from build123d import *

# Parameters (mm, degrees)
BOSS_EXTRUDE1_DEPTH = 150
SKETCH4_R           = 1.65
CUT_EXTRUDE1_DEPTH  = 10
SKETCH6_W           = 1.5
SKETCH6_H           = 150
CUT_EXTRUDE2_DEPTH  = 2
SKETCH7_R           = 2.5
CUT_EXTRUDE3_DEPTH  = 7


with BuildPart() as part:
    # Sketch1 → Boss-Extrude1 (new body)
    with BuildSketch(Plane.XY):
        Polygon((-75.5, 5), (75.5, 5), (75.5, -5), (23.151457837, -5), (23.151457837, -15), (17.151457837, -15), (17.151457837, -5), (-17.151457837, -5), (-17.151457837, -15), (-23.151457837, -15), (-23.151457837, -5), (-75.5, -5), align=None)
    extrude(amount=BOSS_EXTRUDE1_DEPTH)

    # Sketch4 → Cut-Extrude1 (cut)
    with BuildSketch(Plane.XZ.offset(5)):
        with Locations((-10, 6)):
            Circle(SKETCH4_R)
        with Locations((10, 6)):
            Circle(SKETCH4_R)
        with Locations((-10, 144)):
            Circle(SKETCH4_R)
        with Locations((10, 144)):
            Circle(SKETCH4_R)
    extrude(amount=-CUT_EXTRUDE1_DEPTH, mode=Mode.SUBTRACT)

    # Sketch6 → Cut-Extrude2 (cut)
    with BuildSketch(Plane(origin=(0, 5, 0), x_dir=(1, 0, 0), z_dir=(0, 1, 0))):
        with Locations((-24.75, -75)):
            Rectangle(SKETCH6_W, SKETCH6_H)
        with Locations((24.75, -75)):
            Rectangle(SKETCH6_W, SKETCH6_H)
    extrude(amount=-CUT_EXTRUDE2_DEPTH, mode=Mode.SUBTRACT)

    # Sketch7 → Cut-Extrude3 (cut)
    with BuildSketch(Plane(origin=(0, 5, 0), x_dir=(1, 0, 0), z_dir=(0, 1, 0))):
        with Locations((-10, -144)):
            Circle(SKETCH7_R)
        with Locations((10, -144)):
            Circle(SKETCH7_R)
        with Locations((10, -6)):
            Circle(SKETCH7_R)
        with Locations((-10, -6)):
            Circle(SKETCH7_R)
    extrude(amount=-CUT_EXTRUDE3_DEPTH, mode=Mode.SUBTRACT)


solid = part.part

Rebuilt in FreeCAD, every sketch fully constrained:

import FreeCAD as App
import Part
import Sketcher
from FreeCAD import Vector


def add_polygon(sketch, points):
    """Adds a closed chain of lines whose ends are joined by coincident constraints."""
    first, n = sketch.GeometryCount, len(points)
    for a, b in zip(points, points[1:] + points[:1]):
        sketch.addGeometry(Part.LineSegment(App.Vector(*a, 0), App.Vector(*b, 0)), False)
    for i in range(n):
        sketch.addConstraint(Sketcher.Constraint("Coincident", first + i, 2, first + (i + 1) % n, 1))

doc = App.newDocument("Part")
body = doc.addObject("PartDesign::Body", "Body")

# Sketch on XY plane
sketch1 = body.newObject("Sketcher::SketchObject", "Sketch")
sketch1.AttachmentSupport = (doc.getObject("XY_Plane"), [""])
sketch1.MapMode = "FlatFace"
add_polygon(sketch1, [(76, 5), (-76, 5), (-76, -5), (-23, -5), (-23, -15), (-17, -15), (-17, -5), (17, -5), (17, -15), (23, -15), (23, -5), (76, -5)])  # lines 0-11
sketch1.addConstraint([
    Sketcher.Constraint("Horizontal", 0),
    Sketcher.Constraint("Vertical", 1),
    Sketcher.Constraint("Horizontal", 2),
    Sketcher.Constraint("Vertical", 3),
    Sketcher.Constraint("Horizontal", 4),
    Sketcher.Constraint("Vertical", 5),
    Sketcher.Constraint("Horizontal", 6),
    Sketcher.Constraint("Vertical", 7),
    Sketcher.Constraint("Horizontal", 8),
    Sketcher.Constraint("Vertical", 9),
    Sketcher.Constraint("Horizontal", 10),
    Sketcher.Constraint("Vertical", 11),
    Sketcher.Constraint("Symmetric", 0, 2, 10, 2, -1, 1),
    Sketcher.Constraint("Symmetric", 4, 2, 7, 2, -2),
    Sketcher.Constraint("Symmetric", 2, 2, 9, 2, -2),
    Sketcher.Constraint("Horizontal", 2, 2, 5, 2),
    Sketcher.Constraint("Equal", 1, 3),
    Sketcher.Constraint("DistanceX", 0, 2, 0, 1, 151.0),
    Sketcher.Constraint("DistanceX", 4, 1, 4, 2, 6.0),
    Sketcher.Constraint("DistanceY", 1, 2, 1, 1, 10.0),
    Sketcher.Constraint("DistanceX", 2, 1, 2, 2, 52.348542),
])
pad1 = body.newObject("PartDesign::Pad", "Pad")
pad1.Profile = sketch1
pad1.Length = 150

# Sketch on XZ plane
sketch2 = body.newObject("Sketcher::SketchObject", "Sketch001")
sketch2.AttachmentSupport = (doc.getObject("XZ_Plane"), [""])
sketch2.MapMode = "FlatFace"
sketch2.AttachmentOffset = App.Placement(Vector(0, 0, 5), App.Rotation())
sketch2.addGeometry([
    Part.Circle(Vector(-10, 6, 0), Vector(0, 0, 1), 1.6),
    Part.Circle(Vector(10, 6, 0), Vector(0, 0, 1), 1.6),
    Part.Circle(Vector(-10, 144, 0), Vector(0, 0, 1), 1.6),
    Part.Circle(Vector(10, 144, 0), Vector(0, 0, 1), 1.6),
], False)
sketch2.addConstraint([
    Sketcher.Constraint("Equal", 0, 1),
    Sketcher.Constraint("Equal", 1, 2),
    Sketcher.Constraint("Equal", 2, 3),
    Sketcher.Constraint("Symmetric", 0, 3, 1, 3, -2),
    Sketcher.Constraint("Symmetric", 2, 3, 3, 3, -2),
    Sketcher.Constraint("Vertical", 0, 3, 2, 3),
    Sketcher.Constraint("Diameter", 0, 3.3),
    Sketcher.Constraint("DistanceX", 0, 3, -1, 1, 10.0),
    Sketcher.Constraint("DistanceY", -1, 1, 0, 3, 6.0),
    Sketcher.Constraint("DistanceY", -1, 1, 2, 3, 144.0),
])
pocket1 = body.newObject("PartDesign::Pocket", "Pocket")
pocket1.Profile = sketch2
pocket1.Length = 10

# Sketch on XZ plane
sketch3 = body.newObject("Sketcher::SketchObject", "Sketch002")
sketch3.AttachmentSupport = (doc.getObject("XZ_Plane"), [""])
sketch3.MapMode = "FlatFace"
sketch3.AttachmentOffset = App.Placement(Vector(0, 0, -5), App.Rotation())
add_polygon(sketch3, [(-25.5, 0), (-25.5, 150), (-24, 150), (-24, 0)])  # lines 0-3
add_polygon(sketch3, [(24, 0), (24, 150), (25.5, 150), (25.5, 0)])  # lines 4-7
sketch3.addConstraint([
    Sketcher.Constraint("Vertical", 0),
    Sketcher.Constraint("Horizontal", 1),
    Sketcher.Constraint("Vertical", 2),
    Sketcher.Constraint("Horizontal", 3),
    Sketcher.Constraint("Vertical", 4),
    Sketcher.Constraint("Horizontal", 5),
    Sketcher.Constraint("Vertical", 6),
    Sketcher.Constraint("Horizontal", 7),
    Sketcher.Constraint("Symmetric", 3, 2, 6, 2, -1, 1),
    Sketcher.Constraint("Symmetric", 1, 2, 4, 2, -2),
    Sketcher.Constraint("PointOnObject", 2, 2, -1),
    Sketcher.Constraint("DistanceY", 0, 1, 0, 2, 150.0),
    Sketcher.Constraint("DistanceX", 1, 1, 1, 2, 1.5),
    Sketcher.Constraint("DistanceX", 1, 2, -1, 1, 24.0),
])
pocket2 = body.newObject("PartDesign::Pocket", "Pocket001")
pocket2.Profile = sketch3
pocket2.Length = 2
pocket2.Reversed = True

# Sketch on XZ plane
sketch4 = body.newObject("Sketcher::SketchObject", "Sketch003")
sketch4.AttachmentSupport = (doc.getObject("XZ_Plane"), [""])
sketch4.MapMode = "FlatFace"
sketch4.AttachmentOffset = App.Placement(Vector(0, 0, -5), App.Rotation())
sketch4.addGeometry([
    Part.Circle(Vector(-10, 144, 0), Vector(0, 0, 1), 2.5),
    Part.Circle(Vector(10, 144, 0), Vector(0, 0, 1), 2.5),
    Part.Circle(Vector(10, 6, 0), Vector(0, 0, 1), 2.5),
    Part.Circle(Vector(-10, 6, 0), Vector(0, 0, 1), 2.5),
], False)
sketch4.addConstraint([
    Sketcher.Constraint("Equal", 0, 1),
    Sketcher.Constraint("Equal", 1, 2),
    Sketcher.Constraint("Equal", 2, 3),
    Sketcher.Constraint("Symmetric", 0, 3, 1, 3, -2),
    Sketcher.Constraint("Symmetric", 2, 3, 3, 3, -2),
    Sketcher.Constraint("Vertical", 1, 3, 2, 3),
    Sketcher.Constraint("Diameter", 0, 5.0),
    Sketcher.Constraint("DistanceX", 0, 3, -1, 1, 10.0),
    Sketcher.Constraint("DistanceY", -1, 1, 0, 3, 144.0),
    Sketcher.Constraint("DistanceY", -1, 1, 2, 3, 6.0),
])
pocket3 = body.newObject("PartDesign::Pocket", "Pocket002")
pocket3.Profile = sketch4
pocket3.Length = 7
pocket3.Reversed = True

doc.recompute()
